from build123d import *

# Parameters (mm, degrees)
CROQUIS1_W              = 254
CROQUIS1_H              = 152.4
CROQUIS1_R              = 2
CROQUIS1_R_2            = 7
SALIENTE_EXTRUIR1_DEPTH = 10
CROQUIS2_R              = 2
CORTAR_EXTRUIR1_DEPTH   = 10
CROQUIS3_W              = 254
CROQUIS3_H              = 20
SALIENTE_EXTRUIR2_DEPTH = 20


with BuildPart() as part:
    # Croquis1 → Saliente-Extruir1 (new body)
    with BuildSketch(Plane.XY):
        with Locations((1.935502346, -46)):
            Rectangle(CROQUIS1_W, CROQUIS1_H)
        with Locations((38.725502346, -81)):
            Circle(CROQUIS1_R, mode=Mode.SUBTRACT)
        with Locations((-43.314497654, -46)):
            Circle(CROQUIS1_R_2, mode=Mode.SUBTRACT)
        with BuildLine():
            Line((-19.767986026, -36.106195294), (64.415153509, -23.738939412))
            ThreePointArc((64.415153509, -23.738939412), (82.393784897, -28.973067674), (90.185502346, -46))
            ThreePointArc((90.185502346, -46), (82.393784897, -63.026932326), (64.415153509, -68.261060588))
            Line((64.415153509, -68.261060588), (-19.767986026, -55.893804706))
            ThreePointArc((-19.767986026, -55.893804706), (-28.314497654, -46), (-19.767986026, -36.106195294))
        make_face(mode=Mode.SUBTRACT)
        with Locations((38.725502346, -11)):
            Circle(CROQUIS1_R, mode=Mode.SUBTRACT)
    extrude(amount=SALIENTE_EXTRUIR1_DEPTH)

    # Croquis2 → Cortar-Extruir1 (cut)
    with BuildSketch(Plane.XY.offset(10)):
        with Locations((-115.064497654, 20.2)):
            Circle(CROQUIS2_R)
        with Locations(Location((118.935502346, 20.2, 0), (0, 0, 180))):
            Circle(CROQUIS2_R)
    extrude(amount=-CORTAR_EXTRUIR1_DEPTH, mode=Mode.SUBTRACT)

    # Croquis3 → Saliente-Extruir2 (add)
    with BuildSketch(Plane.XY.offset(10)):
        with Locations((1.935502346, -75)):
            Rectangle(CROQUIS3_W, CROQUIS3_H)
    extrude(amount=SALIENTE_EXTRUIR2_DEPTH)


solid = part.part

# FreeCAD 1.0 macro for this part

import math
import FreeCAD as App
import Part
import Sketcher
Q = App.Units.Quantity


def add_polygon(sketch, points):
    """Adds a closed chain of lines whose ends are joined by coincident constraints."""
    first, n = sketch.GeometryCount, len(points)
    for a, b in zip(points, points[1:] + points[:1]):
        sketch.addGeometry(Part.LineSegment(App.Vector(*a, 0), App.Vector(*b, 0)), False)
    for i in range(n):
        sketch.addConstraint(Sketcher.Constraint("Coincident", first + i, 2, first + (i + 1) % n, 1))

doc = App.newDocument("Part")
body = doc.addObject("PartDesign::Body", "Body")

sketch1 = doc.addObject("Sketcher::SketchObject", "Sketch")
body.addObject(sketch1)
sketch1.AttachmentSupport = (doc.XY_Plane, [""])
sketch1.MapMode = "FlatFace"
add_polygon(sketch1, [(-125.064498, 30.2), (-125.064498, -122.2), (128.935502, -122.2), (128.935502, 30.2)])
sketch1.addGeometry(Part.Circle(App.Vector(38.725502, -81, 0), App.Vector(0, 0, 1), 2), False)
sketch1.addGeometry(Part.Circle(App.Vector(-43.314498, -46, 0), App.Vector(0, 0, 1), 7), False)
sketch1.addGeometry(Part.ArcOfCircle(Part.Circle(App.Vector(-18.314498, -46, 0), App.Vector(0, 0, 1), 10), math.radians(98.35748), math.radians(261.64252)), False)
sketch1.addGeometry(Part.LineSegment(App.Vector(-19.767986, -36.106195, 0), App.Vector(64.415154, -23.738939, 0)), False)
sketch1.addGeometry(Part.ArcOfCircle(Part.Circle(App.Vector(67.685502, -46, 0), App.Vector(0, 0, 1), 22.5), math.radians(0), math.radians(98.35748)), False)
sketch1.addGeometry(Part.ArcOfCircle(Part.Circle(App.Vector(67.685502, -46, 0), App.Vector(0, 0, 1), 22.5), math.radians(-98.35748), math.radians(0)), False)
sketch1.addGeometry(Part.LineSegment(App.Vector(64.415154, -68.261061, 0), App.Vector(-19.767986, -55.893805, 0)), False)
sketch1.addGeometry(Part.Circle(App.Vector(38.725502, -11, 0), App.Vector(0, 0, 1), 2), False)
sketch1.addConstraint(Sketcher.Constraint("Tangent", 6, 1, 7, 1))
sketch1.addConstraint(Sketcher.Constraint("Tangent", 7, 2, 8, 2))
sketch1.addConstraint(Sketcher.Constraint("Tangent", 8, 1, 9, 2))
sketch1.addConstraint(Sketcher.Constraint("Tangent", 9, 1, 10, 1))
sketch1.addConstraint(Sketcher.Constraint("Tangent", 10, 2, 6, 2))
sketch1.addConstraint(Sketcher.Constraint("Vertical", 0))
sketch1.addConstraint(Sketcher.Constraint("Horizontal", 1))
sketch1.addConstraint(Sketcher.Constraint("Vertical", 2))
sketch1.addConstraint(Sketcher.Constraint("Horizontal", 3))
sketch1.addConstraint(Sketcher.Constraint("Equal", 8, 9))
sketch1.addConstraint(Sketcher.Constraint("Equal", 4, 11))
sketch1.addConstraint(Sketcher.Constraint("Horizontal", 5, 3, 6, 3))
sketch1.addConstraint(Sketcher.Constraint("Horizontal", 6, 3, 8, 3))
sketch1.addConstraint(Sketcher.Constraint("Horizontal", 9, 3, 8, 1))
sketch1.addConstraint(Sketcher.Constraint("Vertical", 4, 3, 11, 3))
sketch1.addConstraint(Sketcher.Constraint("Diameter", 4, Q("4 mm")))
sketch1.addConstraint(Sketcher.Constraint("Diameter", 5, Q("14 mm")))
sketch1.addConstraint(Sketcher.Constraint("Radius", 6, Q("10 mm")))
sketch1.addConstraint(Sketcher.Constraint("Radius", 8, Q("22.5 mm")))
sketch1.addConstraint(Sketcher.Constraint("DistanceX", 1, 1, 1, 2, Q("254 mm")))
sketch1.addConstraint(Sketcher.Constraint("DistanceY", 0, 2, 0, 1, Q("152.4 mm")))
sketch1.addConstraint(Sketcher.Constraint("DistanceY", 4, 3, -1, 1, Q("81 mm")))
sketch1.addConstraint(Sketcher.Constraint("DistanceY", 5, 3, -1, 1, Q("46 mm")))
sketch1.addConstraint(Sketcher.Constraint("DistanceY", 11, 3, -1, 1, Q("11 mm")))
sketch1.addConstraint(Sketcher.Constraint("DistanceX", 5, 3, 6, 3, Q("25 mm")))
sketch1.addConstraint(Sketcher.Constraint("DistanceX", 6, 3, 8, 3, Q("86 mm")))
sketch1.addConstraint(Sketcher.Constraint("DistanceY", 0, 2, -1, 1, Q("122.2 mm")))
sketch1.addConstraint(Sketcher.Constraint("DistanceX", 5, 3, 4, 3, Q("82.04 mm")))
sketch1.addConstraint(Sketcher.Constraint("DistanceX", 0, 2, 5, 3, Q("81.75 mm")))
sketch1.addConstraint(Sketcher.Constraint("DistanceX", -1, 1, 4, 3, Q("38.725502 mm")))
pad1 = doc.addObject("PartDesign::Pad", "Pad")
body.addObject(pad1)
pad1.Profile = sketch1
pad1.Length = 10

sketch2 = doc.addObject("Sketcher::SketchObject", "Sketch001")
body.addObject(sketch2)
sketch2.AttachmentSupport = (doc.XY_Plane, [""])
sketch2.MapMode = "FlatFace"
sketch2.AttachmentOffset = App.Placement(App.Vector(0, 0, 10), App.Rotation())
sketch2.addGeometry(Part.Circle(App.Vector(-115.064498, 20.2, 0), App.Vector(0, 0, 1), 2), False)
sketch2.addGeometry(Part.Circle(App.Vector(118.935502, 20.2, 0), App.Vector(0, 0, 1), 2), False)
sketch2.addConstraint(Sketcher.Constraint("Equal", 0, 1))
sketch2.addConstraint(Sketcher.Constraint("Horizontal", 0, 3, 1, 3))
sketch2.addConstraint(Sketcher.Constraint("Diameter", 0, Q("4 mm")))
sketch2.addConstraint(Sketcher.Constraint("DistanceX", 0, 3, 1, 3, Q("234 mm")))
sketch2.addConstraint(Sketcher.Constraint("DistanceY", -1, 1, 0, 3, Q("20.2 mm")))
sketch2.addConstraint(Sketcher.Constraint("DistanceX", 0, 3, -1, 1, Q("115.064498 mm")))
pocket1 = doc.addObject("PartDesign::Pocket", "Pocket")
body.addObject(pocket1)
pocket1.Profile = sketch2
pocket1.Length = 10

sketch3 = doc.addObject("Sketcher::SketchObject", "Sketch002")
body.addObject(sketch3)
sketch3.AttachmentSupport = (doc.XY_Plane, [""])
sketch3.MapMode = "FlatFace"
sketch3.AttachmentOffset = App.Placement(App.Vector(0, 0, 10), App.Rotation())
add_polygon(sketch3, [(-125.064498, -65), (-125.064498, -85), (128.935502, -85), (128.935502, -65)])
sketch3.addConstraint(Sketcher.Constraint("Vertical", 0))
sketch3.addConstraint(Sketcher.Constraint("Horizontal", 1))
sketch3.addConstraint(Sketcher.Constraint("Vertical", 2))
sketch3.addConstraint(Sketcher.Constraint("Horizontal", 3))
sketch3.addConstraint(Sketcher.Constraint("DistanceX", 1, 1, 1, 2, Q("254 mm")))
sketch3.addConstraint(Sketcher.Constraint("DistanceY", 0, 2, 0, 1, Q("20 mm")))
sketch3.addConstraint(Sketcher.Constraint("DistanceY", 0, 2, -1, 1, Q("85 mm")))
sketch3.addConstraint(Sketcher.Constraint("DistanceX", 0, 2, -1, 1, Q("125.064498 mm")))
pad2 = doc.addObject("PartDesign::Pad", "Pad001")
body.addObject(pad2)
pad2.Profile = sketch3
pad2.Length = 20

doc.recompute()
